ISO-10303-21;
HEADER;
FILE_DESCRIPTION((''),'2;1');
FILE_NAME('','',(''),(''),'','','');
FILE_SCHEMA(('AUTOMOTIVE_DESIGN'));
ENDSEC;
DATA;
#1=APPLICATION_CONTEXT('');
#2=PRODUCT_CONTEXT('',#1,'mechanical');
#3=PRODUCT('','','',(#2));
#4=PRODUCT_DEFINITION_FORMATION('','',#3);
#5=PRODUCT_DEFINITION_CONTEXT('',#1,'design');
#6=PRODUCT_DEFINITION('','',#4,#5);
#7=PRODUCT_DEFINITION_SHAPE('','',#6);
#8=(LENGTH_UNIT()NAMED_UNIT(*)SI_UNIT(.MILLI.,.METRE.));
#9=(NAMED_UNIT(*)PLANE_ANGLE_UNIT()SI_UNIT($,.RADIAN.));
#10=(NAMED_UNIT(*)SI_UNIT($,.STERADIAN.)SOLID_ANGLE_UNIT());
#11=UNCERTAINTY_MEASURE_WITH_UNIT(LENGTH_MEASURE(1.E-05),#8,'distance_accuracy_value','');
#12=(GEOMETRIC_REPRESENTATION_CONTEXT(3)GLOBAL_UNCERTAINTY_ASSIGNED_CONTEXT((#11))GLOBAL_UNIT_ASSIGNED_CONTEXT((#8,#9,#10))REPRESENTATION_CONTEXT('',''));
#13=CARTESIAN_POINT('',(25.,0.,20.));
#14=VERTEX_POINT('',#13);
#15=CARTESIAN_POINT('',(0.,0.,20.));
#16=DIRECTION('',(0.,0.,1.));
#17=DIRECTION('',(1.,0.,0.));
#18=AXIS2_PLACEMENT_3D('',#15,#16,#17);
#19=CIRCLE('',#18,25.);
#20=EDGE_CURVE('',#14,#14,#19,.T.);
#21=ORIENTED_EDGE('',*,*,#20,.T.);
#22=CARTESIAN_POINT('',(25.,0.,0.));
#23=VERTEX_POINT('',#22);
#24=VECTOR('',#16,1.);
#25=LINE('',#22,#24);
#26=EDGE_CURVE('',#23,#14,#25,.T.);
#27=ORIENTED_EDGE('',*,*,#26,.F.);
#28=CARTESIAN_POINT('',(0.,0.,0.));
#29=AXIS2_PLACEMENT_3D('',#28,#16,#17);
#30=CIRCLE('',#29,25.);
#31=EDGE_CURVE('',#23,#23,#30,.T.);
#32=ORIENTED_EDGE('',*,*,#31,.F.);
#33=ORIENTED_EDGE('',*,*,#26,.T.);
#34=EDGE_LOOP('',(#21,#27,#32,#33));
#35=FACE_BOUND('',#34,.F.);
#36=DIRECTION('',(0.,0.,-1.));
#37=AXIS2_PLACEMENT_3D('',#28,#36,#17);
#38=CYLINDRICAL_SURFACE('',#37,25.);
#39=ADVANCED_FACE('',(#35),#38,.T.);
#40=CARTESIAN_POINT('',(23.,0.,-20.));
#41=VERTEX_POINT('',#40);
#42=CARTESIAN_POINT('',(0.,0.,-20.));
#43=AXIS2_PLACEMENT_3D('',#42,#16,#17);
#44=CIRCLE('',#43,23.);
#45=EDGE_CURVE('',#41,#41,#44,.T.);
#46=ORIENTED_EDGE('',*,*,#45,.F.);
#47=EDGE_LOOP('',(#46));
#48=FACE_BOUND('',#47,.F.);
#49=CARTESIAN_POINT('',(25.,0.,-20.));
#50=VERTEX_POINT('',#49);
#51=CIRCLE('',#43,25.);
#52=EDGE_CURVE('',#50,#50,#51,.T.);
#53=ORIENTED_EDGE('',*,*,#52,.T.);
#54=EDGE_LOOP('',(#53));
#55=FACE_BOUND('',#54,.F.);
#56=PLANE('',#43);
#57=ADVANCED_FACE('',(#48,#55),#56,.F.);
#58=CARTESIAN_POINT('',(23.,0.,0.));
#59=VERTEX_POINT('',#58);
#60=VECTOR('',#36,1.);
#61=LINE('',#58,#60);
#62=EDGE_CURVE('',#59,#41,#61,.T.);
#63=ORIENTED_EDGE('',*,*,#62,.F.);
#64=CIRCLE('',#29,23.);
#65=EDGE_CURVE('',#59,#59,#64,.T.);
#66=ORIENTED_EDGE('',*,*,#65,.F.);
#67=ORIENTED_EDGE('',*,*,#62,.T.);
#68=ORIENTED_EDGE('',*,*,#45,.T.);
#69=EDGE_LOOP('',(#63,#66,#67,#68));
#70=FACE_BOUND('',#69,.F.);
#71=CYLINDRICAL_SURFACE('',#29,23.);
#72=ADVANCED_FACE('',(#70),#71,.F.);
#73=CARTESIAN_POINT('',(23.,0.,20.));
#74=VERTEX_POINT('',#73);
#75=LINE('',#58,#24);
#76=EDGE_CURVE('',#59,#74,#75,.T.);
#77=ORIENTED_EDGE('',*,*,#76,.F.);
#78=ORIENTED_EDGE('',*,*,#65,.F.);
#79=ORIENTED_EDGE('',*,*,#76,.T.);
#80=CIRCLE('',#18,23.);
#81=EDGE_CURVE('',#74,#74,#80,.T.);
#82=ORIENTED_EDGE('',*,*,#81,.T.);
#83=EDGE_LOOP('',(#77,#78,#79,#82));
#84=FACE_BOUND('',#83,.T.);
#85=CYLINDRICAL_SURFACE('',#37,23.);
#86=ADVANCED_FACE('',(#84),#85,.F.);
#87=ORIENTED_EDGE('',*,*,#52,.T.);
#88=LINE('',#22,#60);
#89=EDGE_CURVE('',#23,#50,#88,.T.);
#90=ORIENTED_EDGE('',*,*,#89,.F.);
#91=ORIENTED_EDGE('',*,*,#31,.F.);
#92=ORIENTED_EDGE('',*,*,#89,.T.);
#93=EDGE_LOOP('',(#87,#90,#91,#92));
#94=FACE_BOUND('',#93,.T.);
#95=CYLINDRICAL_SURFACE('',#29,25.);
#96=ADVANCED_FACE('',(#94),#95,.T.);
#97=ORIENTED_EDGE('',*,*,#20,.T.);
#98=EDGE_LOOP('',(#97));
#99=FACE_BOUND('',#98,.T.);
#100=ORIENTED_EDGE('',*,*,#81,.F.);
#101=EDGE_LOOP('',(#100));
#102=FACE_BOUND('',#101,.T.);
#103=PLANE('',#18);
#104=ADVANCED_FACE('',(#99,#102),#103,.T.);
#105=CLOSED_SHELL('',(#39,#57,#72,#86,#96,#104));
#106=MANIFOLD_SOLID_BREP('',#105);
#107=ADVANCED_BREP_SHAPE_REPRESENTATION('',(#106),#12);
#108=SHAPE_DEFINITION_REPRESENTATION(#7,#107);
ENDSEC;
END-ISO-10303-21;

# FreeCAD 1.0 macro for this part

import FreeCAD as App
import Part
import Sketcher
from FreeCAD import Vector

doc = App.newDocument("Part")
params = doc.addObject("Spreadsheet::Sheet", "Params")
for row, (alias, value) in enumerate([
    ("sketch1_diameter", "50 mm"),
    ("sketch1_diameter2", "46 mm"),
    ("pad1_length", "40 mm"),
], start=1):
    params.set(f"A{row}", alias)
    params.set(f"B{row}", "=" + value)
    params.setAlias(f"B{row}", alias)

body = doc.addObject("PartDesign::Body", "Body")

# Sketch on XY plane
sketch1 = body.newObject("Sketcher::SketchObject", "Sketch")
sketch1.AttachmentSupport = (doc.getObject("XY_Plane"), [""])
sketch1.MapMode = "FlatFace"
sketch1.addGeometry([
    Part.Circle(Vector(0, 0, 0), Vector(0, 0, 1), 25),
    Part.Circle(Vector(0, 0, 0), Vector(0, 0, 1), 23),
], False)
sketch1.addConstraint([
    Sketcher.Constraint("Coincident", 0, 3, -1, 1),
    Sketcher.Constraint("Coincident", 1, 3, -1, 1),
    Sketcher.Constraint("Diameter", 0, 50.0),
    Sketcher.Constraint("Diameter", 1, 46.0),
])
sketch1.setExpression("Constraints[2]", "Params.sketch1_diameter")
sketch1.setExpression("Constraints[3]", "Params.sketch1_diameter2")
pad1 = body.newObject("PartDesign::Pad", "Pad")
pad1.Profile = sketch1
pad1.setExpression("Length", "Params.pad1_length")
pad1.Midplane = True

doc.recompute()
